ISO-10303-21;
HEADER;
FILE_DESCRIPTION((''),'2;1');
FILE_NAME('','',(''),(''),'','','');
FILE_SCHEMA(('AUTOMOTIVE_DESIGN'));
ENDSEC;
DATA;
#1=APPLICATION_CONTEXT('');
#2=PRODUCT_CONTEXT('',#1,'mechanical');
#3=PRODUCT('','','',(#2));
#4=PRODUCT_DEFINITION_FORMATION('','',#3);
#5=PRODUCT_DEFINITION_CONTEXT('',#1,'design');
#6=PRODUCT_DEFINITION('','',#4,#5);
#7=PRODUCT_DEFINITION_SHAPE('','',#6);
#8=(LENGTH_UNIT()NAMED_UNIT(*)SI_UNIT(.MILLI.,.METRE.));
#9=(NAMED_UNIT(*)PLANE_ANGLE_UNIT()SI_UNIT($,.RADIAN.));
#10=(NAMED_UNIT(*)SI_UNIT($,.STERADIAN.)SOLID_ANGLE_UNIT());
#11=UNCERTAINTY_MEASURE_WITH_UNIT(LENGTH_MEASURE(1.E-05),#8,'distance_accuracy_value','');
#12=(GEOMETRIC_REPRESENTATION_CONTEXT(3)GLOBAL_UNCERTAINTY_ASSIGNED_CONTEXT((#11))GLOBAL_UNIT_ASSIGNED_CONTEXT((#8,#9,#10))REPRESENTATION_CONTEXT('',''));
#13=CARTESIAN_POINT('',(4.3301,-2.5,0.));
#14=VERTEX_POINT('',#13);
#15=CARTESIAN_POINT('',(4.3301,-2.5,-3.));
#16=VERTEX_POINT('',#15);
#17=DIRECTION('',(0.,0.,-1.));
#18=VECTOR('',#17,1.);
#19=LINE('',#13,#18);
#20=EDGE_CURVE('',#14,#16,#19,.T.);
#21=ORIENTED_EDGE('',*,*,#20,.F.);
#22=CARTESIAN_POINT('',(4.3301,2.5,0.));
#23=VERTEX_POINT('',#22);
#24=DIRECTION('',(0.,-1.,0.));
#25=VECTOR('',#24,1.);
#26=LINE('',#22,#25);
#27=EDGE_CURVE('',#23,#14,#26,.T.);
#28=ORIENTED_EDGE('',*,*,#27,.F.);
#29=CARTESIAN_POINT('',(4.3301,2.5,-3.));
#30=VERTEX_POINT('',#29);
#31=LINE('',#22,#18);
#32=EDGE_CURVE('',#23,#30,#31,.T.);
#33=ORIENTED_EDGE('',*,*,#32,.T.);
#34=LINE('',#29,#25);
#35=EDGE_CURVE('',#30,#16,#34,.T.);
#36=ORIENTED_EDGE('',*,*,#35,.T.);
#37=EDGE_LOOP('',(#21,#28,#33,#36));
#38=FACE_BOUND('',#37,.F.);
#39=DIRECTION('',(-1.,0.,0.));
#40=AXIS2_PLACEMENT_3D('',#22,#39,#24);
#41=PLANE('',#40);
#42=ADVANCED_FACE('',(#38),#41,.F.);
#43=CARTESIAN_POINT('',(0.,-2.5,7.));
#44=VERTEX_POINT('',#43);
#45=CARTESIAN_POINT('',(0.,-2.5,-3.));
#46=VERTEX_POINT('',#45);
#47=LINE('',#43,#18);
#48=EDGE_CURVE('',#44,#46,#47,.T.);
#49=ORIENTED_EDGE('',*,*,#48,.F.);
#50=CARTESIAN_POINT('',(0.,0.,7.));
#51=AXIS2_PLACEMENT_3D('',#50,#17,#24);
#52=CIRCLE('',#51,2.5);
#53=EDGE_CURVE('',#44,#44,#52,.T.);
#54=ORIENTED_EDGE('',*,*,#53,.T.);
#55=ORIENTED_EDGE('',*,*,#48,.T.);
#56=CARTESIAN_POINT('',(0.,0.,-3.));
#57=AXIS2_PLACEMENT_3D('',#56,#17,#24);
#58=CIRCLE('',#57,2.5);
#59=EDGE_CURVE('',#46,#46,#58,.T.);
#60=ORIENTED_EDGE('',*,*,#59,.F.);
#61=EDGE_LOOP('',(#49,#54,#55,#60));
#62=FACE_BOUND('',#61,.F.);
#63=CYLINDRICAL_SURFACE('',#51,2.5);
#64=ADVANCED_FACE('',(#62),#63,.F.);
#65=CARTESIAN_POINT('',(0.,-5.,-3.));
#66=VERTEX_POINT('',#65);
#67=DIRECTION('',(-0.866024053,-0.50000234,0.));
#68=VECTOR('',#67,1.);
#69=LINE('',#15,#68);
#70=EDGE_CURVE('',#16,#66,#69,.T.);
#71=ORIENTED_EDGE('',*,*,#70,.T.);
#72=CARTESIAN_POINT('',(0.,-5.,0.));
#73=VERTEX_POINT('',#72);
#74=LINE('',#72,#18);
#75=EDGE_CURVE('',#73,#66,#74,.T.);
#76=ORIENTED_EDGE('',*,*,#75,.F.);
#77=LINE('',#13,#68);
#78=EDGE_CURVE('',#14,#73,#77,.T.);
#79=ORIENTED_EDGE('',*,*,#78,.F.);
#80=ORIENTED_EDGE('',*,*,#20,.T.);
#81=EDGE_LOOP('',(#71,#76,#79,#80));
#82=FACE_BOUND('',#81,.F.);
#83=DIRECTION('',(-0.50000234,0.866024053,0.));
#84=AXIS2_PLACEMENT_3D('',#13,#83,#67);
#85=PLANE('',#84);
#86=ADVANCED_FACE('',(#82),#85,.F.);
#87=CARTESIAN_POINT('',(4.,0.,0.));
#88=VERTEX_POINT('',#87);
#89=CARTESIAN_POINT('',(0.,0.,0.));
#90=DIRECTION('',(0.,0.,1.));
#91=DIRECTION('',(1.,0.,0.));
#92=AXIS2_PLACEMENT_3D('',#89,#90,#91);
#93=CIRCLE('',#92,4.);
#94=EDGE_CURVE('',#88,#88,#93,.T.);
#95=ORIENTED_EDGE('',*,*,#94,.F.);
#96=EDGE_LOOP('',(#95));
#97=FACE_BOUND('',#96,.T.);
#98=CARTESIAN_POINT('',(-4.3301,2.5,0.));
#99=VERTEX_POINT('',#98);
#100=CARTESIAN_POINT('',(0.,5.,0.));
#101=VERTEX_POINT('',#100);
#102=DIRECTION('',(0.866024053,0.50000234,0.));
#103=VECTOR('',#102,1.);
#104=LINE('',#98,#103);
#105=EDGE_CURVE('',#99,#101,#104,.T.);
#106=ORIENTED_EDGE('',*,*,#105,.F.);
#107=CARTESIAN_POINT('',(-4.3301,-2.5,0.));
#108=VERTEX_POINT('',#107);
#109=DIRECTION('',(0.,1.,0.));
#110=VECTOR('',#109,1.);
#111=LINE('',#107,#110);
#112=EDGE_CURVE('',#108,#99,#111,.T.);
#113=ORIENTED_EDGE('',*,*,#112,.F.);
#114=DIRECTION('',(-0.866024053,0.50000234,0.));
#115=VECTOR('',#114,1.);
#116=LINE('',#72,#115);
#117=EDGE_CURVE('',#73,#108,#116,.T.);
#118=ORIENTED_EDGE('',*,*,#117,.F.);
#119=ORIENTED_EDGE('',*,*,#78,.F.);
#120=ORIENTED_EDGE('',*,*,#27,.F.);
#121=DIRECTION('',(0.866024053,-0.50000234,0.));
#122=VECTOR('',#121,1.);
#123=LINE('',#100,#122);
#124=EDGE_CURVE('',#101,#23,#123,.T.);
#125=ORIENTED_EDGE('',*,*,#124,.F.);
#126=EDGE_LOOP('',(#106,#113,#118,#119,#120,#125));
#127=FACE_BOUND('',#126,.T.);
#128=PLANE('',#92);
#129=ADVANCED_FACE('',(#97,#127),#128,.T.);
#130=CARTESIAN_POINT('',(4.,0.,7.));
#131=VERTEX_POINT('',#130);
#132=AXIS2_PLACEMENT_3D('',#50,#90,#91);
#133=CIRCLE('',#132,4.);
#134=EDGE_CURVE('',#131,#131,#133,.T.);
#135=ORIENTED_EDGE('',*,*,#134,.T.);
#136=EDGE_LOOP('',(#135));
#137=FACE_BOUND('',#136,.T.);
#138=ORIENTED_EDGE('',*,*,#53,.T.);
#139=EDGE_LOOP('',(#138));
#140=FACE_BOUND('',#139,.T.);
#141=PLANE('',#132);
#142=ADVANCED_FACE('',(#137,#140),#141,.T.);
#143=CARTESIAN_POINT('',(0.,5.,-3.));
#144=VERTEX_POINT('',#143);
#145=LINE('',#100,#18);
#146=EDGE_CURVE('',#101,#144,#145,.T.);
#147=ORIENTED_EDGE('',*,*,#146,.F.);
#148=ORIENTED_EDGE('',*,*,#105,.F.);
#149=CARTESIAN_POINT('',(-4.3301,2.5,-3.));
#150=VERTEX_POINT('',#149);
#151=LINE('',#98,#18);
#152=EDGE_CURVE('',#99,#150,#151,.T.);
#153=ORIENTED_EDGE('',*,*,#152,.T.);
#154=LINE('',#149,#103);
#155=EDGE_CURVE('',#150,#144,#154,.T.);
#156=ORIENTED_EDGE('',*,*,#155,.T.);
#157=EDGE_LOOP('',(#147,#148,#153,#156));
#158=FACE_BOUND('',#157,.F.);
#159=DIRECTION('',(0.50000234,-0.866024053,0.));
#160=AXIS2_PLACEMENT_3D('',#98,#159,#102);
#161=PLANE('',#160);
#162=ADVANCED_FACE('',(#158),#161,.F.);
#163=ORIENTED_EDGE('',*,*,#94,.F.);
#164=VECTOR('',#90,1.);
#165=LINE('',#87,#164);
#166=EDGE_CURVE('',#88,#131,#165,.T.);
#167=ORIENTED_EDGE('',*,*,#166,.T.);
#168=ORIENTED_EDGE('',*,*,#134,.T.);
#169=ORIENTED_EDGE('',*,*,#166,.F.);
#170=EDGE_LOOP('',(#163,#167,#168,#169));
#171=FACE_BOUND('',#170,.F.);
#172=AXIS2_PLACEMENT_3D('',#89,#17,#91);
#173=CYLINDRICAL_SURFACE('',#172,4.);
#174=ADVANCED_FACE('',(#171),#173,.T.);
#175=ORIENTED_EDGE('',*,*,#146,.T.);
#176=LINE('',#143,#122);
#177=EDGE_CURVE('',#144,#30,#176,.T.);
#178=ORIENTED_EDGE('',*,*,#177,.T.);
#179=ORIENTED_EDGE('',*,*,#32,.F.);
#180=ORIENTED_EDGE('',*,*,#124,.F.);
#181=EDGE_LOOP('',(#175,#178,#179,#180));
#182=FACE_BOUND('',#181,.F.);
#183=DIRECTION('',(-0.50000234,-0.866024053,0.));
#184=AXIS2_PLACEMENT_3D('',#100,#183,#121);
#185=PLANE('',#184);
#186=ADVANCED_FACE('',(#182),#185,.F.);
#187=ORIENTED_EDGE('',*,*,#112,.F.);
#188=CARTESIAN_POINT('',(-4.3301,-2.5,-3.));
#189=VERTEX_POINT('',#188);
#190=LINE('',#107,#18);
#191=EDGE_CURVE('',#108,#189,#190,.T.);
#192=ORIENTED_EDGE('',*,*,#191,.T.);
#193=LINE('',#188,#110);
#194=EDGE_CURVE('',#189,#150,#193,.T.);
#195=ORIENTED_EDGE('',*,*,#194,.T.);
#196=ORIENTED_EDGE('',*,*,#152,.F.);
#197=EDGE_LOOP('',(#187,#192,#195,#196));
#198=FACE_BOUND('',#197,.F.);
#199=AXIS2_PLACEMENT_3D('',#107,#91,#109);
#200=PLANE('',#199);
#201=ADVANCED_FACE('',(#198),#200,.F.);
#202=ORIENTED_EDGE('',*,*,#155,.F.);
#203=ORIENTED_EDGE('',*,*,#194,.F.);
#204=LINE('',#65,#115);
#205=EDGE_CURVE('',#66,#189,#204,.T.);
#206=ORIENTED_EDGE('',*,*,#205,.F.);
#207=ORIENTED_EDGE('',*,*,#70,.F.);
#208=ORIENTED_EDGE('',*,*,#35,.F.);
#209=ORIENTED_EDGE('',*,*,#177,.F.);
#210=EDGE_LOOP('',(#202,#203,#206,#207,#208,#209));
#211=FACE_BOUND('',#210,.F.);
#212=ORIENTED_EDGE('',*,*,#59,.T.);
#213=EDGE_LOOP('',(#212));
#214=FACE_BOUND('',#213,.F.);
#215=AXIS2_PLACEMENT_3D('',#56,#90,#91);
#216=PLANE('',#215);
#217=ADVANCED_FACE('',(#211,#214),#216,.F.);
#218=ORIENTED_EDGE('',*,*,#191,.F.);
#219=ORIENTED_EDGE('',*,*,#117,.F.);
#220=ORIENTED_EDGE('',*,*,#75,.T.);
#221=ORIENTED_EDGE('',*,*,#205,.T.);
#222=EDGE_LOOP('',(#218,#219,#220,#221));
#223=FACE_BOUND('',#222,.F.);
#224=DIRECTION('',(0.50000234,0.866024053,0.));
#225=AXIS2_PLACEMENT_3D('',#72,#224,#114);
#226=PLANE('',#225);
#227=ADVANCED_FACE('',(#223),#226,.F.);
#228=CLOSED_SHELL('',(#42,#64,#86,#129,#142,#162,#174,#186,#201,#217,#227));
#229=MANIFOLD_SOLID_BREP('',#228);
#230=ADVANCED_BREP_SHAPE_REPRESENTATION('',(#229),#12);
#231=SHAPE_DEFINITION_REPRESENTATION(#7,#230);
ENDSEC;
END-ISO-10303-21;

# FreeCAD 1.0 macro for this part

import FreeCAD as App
import Part
import Sketcher
from FreeCAD import Vector
Q = App.Units.Quantity

doc = App.newDocument("Part")
body = doc.addObject("PartDesign::Body", "Body")

sketch1 = body.newObject("Sketcher::SketchObject", "Sketch")
sketch1.AttachmentSupport = (doc.getObject("XY_Plane"), [""])
sketch1.MapMode = "FlatFace"
sketch1.addGeometry(Part.LineSegment(Vector(4.3301, 2.5, 0), Vector(0, 5, 0)), False)
sketch1.addGeometry(Part.LineSegment(Vector(0, 5, 0), Vector(-4.3301, 2.5, 0)), False)
sketch1.addGeometry(Part.LineSegment(Vector(-4.3301, 2.5, 0), Vector(-4.3301, -2.5, 0)), False)
sketch1.addGeometry(Part.LineSegment(Vector(-4.3301, -2.5, 0), Vector(0, -5, 0)), False)
sketch1.addGeometry(Part.LineSegment(Vector(0, -5, 0), Vector(4.3301, -2.5, 0)), False)
sketch1.addGeometry(Part.LineSegment(Vector(4.3301, -2.5, 0), Vector(4.3301, 2.5, 0)), False)
sketch1.addConstraint(Sketcher.Constraint("Coincident", 0, 2, 1, 1))
sketch1.addConstraint(Sketcher.Constraint("Coincident", 1, 2, 2, 1))
sketch1.addConstraint(Sketcher.Constraint("Coincident", 2, 2, 3, 1))
sketch1.addConstraint(Sketcher.Constraint("Coincident", 3, 2, 4, 1))
sketch1.addConstraint(Sketcher.Constraint("Coincident", 4, 2, 5, 1))
sketch1.addConstraint(Sketcher.Constraint("Coincident", 5, 2, 0, 1))
sketch1.addConstraint(Sketcher.Constraint("Vertical", 2))
sketch1.addConstraint(Sketcher.Constraint("Vertical", 5))
sketch1.addConstraint(Sketcher.Constraint("Symmetric", 0, 2, 3, 2, -1, 1))
sketch1.addConstraint(Sketcher.Constraint("Symmetric", 1, 2, 4, 2, -1, 1))
sketch1.addConstraint(Sketcher.Constraint("PointOnObject", 0, 2, -2))
sketch1.addConstraint(Sketcher.Constraint("Parallel", 0, 3))
sketch1.addConstraint(Sketcher.Constraint("Horizontal", 2, 2, 4, 2))
sketch1.addConstraint(Sketcher.Constraint("DistanceY", 3, 2, 0, 2, 10.0))
sketch1.addConstraint(Sketcher.Constraint("DistanceY", 2, 2, 2, 1, 5.0))
sketch1.addConstraint(Sketcher.Constraint("Angle", 0, Q("149.9998 deg")))
pad1 = body.newObject("PartDesign::Pad", "Pad")
pad1.Profile = sketch1
pad1.Length = 3
pad1.Reversed = True

sketch2 = body.newObject("Sketcher::SketchObject", "Sketch001")
sketch2.AttachmentSupport = (doc.getObject("XY_Plane"), [""])
sketch2.MapMode = "FlatFace"
sketch2.addGeometry(Part.Circle(Vector(0, 0, 0), Vector(0, 0, 1), 4), False)
sketch2.addConstraint(Sketcher.Constraint("Coincident", 0, 3, -1, 1))
sketch2.addConstraint(Sketcher.Constraint("Diameter", 0, 8.0))
pad2 = body.newObject("PartDesign::Pad", "Pad001")
pad2.Profile = sketch2
pad2.Length = 7

sketch3 = body.newObject("Sketcher::SketchObject", "Sketch002")
sketch3.AttachmentSupport = (doc.getObject("XY_Plane"), [""])
sketch3.MapMode = "FlatFace"
sketch3.AttachmentOffset = App.Placement(Vector(0, 0, 7), App.Rotation())
sketch3.addGeometry(Part.Circle(Vector(0, 0, 0), Vector(0, 0, 1), 2.5), False)
sketch3.addConstraint(Sketcher.Constraint("Coincident", 0, 3, -1, 1))
sketch3.addConstraint(Sketcher.Constraint("Diameter", 0, 5.0))
doc.recompute()
hole = body.newObject("PartDesign::Hole", "Hole")
hole.Profile = sketch3
hole.ThreadType = "None"
hole.Diameter = 5
hole.DepthType = "Dimension"
hole.Depth = 10
hole.DrillPoint = "Flat"

doc.recompute()
